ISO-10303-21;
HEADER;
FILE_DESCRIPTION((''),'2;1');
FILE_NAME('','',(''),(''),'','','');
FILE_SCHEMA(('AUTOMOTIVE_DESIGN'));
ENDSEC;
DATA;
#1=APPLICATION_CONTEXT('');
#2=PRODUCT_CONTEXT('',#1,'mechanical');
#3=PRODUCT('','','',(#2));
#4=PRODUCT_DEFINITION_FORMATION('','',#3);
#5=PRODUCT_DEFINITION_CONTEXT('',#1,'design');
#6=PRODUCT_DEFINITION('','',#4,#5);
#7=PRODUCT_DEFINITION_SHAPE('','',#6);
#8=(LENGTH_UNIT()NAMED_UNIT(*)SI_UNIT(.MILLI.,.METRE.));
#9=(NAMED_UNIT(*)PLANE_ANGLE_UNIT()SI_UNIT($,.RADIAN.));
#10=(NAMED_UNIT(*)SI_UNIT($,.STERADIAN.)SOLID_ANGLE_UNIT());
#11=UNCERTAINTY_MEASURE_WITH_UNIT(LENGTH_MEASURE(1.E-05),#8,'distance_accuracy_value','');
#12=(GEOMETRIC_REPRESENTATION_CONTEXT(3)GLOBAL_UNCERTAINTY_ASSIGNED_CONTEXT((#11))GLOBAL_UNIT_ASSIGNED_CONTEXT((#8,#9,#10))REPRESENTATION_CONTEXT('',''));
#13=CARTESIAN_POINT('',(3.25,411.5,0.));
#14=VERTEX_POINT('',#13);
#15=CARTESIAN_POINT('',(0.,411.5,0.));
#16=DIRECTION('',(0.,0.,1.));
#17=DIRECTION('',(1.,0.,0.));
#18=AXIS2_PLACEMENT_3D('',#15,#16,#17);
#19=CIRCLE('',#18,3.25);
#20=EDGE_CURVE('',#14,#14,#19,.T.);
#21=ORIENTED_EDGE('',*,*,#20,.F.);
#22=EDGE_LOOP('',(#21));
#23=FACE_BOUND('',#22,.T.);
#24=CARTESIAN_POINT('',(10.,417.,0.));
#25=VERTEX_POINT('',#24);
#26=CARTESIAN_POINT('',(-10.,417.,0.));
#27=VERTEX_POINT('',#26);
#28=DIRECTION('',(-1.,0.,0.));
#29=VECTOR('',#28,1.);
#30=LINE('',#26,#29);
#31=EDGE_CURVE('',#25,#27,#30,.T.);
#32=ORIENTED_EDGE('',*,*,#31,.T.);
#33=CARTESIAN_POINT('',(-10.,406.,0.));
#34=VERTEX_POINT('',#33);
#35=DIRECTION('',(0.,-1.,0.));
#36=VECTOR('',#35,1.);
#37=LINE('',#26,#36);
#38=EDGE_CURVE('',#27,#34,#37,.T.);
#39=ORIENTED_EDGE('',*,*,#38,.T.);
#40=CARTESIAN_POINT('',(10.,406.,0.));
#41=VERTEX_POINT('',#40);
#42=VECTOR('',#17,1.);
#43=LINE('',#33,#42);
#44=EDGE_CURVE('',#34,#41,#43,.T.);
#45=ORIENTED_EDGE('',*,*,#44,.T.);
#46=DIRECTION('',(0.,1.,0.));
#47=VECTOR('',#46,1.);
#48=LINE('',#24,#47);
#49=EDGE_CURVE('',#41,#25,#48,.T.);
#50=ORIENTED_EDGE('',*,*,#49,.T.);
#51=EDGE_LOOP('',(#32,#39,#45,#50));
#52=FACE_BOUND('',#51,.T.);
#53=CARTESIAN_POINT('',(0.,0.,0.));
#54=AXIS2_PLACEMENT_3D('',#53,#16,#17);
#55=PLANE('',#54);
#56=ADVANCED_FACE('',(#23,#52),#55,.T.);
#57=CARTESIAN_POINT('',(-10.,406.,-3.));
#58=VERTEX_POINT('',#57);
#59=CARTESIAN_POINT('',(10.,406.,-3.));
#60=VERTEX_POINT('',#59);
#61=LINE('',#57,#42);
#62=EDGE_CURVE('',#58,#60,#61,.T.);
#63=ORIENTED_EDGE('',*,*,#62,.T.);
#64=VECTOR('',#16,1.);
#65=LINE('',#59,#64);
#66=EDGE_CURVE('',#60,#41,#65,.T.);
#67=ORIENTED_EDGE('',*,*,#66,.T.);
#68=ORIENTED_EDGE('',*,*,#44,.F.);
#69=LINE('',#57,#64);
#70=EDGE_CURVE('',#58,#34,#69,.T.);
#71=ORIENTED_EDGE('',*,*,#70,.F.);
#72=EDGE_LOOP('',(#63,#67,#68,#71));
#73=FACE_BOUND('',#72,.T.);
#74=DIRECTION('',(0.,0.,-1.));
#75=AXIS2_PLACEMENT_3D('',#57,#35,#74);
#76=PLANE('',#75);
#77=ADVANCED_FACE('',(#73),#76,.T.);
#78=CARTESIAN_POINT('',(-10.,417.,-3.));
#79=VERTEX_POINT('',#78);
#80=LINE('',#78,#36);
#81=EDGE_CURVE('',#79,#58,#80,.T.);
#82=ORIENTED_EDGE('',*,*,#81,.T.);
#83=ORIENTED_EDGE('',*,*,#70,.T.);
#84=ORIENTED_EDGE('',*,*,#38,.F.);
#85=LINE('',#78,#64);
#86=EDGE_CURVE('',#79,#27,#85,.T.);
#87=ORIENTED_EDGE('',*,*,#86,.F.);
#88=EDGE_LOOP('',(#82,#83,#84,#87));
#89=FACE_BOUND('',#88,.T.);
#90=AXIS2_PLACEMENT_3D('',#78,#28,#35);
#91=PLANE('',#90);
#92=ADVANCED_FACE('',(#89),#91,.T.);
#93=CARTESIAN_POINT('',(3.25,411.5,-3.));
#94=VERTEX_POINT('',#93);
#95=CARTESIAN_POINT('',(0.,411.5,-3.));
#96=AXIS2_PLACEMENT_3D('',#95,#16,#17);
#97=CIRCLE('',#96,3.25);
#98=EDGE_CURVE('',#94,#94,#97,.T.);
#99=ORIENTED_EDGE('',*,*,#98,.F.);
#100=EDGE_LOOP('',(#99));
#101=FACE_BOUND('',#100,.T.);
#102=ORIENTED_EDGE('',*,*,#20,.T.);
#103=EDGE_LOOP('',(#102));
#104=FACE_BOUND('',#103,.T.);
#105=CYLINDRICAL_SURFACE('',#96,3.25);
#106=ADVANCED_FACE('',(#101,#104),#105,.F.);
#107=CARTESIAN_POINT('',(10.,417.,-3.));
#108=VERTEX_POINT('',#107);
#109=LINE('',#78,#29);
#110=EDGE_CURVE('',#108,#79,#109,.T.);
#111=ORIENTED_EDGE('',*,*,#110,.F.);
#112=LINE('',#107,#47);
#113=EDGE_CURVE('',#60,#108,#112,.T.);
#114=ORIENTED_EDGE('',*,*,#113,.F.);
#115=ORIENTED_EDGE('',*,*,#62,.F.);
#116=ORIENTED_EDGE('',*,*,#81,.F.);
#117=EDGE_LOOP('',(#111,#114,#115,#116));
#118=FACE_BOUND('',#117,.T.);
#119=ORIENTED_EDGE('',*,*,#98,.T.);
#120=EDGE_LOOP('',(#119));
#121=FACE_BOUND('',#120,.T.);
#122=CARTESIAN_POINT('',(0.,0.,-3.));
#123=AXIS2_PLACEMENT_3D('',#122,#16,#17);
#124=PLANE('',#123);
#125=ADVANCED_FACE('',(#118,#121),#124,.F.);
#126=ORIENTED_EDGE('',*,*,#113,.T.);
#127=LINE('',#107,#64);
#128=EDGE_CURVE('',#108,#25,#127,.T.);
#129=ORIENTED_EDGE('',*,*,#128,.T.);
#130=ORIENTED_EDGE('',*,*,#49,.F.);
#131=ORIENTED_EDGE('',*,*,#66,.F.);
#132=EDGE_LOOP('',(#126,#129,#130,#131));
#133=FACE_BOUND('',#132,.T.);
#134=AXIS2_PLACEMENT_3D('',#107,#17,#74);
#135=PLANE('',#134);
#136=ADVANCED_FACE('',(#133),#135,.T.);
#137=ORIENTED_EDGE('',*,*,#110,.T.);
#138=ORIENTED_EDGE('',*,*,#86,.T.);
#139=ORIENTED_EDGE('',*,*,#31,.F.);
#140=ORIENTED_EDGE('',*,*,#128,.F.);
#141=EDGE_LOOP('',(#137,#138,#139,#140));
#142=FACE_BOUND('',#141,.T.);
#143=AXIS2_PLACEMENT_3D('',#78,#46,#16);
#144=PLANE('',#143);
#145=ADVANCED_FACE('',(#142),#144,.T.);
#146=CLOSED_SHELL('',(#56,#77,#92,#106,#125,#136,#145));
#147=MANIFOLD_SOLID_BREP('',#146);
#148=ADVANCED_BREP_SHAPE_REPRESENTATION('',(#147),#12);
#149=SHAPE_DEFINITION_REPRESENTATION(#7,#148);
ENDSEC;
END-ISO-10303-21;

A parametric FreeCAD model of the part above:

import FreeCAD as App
import Part
import Sketcher
Q = App.Units.Quantity

doc = App.newDocument("Part")
body = doc.addObject("PartDesign::Body", "Body")

sketch1 = body.newObject("Sketcher::SketchObject", "Sketch")
sketch1.AttachmentSupport = (doc.getObject("XY_Plane"), [""])
sketch1.MapMode = "FlatFace"
sketch1.addGeometry(Part.LineSegment(App.Vector(-10, 417, 0), App.Vector(-10, 406, 0)), False)
sketch1.addGeometry(Part.LineSegment(App.Vector(-10, 406, 0), App.Vector(10, 406, 0)), False)
sketch1.addGeometry(Part.LineSegment(App.Vector(10, 406, 0), App.Vector(10, 417, 0)), False)
sketch1.addGeometry(Part.LineSegment(App.Vector(10, 417, 0), App.Vector(-10, 417, 0)), False)
sketch1.addGeometry(Part.Circle(App.Vector(0, 411.5, 0), App.Vector(0, 0, 1), 3.2), False)
sketch1.addConstraint(Sketcher.Constraint("Coincident", 0, 2, 1, 1))
sketch1.addConstraint(Sketcher.Constraint("Coincident", 1, 2, 2, 1))
sketch1.addConstraint(Sketcher.Constraint("Coincident", 2, 2, 3, 1))
sketch1.addConstraint(Sketcher.Constraint("Coincident", 3, 2, 0, 1))
sketch1.addConstraint(Sketcher.Constraint("Vertical", 0))
sketch1.addConstraint(Sketcher.Constraint("Horizontal", 1))
sketch1.addConstraint(Sketcher.Constraint("Vertical", 2))
sketch1.addConstraint(Sketcher.Constraint("Horizontal", 3))
sketch1.addConstraint(Sketcher.Constraint("PointOnObject", 4, 3, -2))
sketch1.addConstraint(Sketcher.Constraint("Diameter", 4, Q("6.5 mm")))
sketch1.addConstraint(Sketcher.Constraint("DistanceX", 1, 1, 1, 2, Q("20 mm")))
sketch1.addConstraint(Sketcher.Constraint("DistanceY", 0, 2, 0, 1, Q("11 mm")))
sketch1.addConstraint(Sketcher.Constraint("DistanceX", 0, 2, -1, 1, Q("10 mm")))
sketch1.addConstraint(Sketcher.Constraint("DistanceY", -1, 1, 0, 2, Q("406 mm")))
sketch1.addConstraint(Sketcher.Constraint("DistanceY", -1, 1, 4, 3, Q("411.5 mm")))
pad1 = body.newObject("PartDesign::Pad", "Pad")
pad1.Profile = sketch1
pad1.Length = 3
pad1.Reversed = True

doc.recompute()
